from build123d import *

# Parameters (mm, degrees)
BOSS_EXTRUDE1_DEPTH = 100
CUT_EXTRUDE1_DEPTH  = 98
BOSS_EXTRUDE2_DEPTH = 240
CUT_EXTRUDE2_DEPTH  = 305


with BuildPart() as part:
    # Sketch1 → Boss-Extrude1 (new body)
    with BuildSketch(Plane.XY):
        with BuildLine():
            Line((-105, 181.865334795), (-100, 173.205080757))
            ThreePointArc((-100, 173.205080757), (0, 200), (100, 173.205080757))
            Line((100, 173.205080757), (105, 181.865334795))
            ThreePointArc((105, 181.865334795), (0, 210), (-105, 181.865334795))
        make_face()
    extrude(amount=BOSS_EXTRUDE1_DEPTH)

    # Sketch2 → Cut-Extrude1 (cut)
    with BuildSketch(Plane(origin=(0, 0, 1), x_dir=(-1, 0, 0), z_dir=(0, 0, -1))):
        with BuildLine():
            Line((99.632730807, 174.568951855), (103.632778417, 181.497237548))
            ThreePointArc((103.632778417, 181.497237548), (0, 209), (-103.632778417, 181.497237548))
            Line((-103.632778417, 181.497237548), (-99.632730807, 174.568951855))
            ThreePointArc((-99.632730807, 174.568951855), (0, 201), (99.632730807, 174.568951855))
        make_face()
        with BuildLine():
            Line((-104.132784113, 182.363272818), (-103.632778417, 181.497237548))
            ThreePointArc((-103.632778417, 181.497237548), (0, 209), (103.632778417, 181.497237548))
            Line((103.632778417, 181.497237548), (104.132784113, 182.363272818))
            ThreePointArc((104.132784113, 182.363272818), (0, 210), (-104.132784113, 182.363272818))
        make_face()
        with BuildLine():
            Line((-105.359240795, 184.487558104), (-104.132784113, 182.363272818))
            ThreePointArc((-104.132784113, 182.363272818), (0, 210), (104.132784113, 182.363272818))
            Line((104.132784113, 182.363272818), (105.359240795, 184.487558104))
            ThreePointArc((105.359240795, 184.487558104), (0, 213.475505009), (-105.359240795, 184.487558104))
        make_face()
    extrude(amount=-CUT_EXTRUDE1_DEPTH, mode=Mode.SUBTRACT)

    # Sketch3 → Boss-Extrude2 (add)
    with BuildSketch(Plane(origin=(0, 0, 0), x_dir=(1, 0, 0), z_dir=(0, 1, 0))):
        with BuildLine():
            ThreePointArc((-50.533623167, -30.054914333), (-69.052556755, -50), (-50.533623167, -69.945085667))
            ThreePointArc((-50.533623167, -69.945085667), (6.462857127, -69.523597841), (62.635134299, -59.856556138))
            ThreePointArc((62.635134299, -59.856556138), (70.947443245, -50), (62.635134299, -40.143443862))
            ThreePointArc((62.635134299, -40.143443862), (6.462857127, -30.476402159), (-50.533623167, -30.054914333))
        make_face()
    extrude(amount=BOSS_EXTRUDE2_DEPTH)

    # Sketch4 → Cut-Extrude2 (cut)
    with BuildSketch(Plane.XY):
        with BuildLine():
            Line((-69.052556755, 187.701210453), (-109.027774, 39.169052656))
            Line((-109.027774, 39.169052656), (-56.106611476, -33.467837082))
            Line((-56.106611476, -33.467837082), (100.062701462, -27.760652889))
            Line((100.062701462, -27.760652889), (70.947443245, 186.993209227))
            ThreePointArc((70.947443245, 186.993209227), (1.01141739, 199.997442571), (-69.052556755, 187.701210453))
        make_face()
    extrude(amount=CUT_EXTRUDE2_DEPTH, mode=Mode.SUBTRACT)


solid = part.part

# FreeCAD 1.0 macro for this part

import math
import FreeCAD as App
import Part
import Sketcher
from FreeCAD import Vector
Q = App.Units.Quantity

doc = App.newDocument("Part")
body = doc.addObject("PartDesign::Body", "Body")

# Sketch on XY plane
sketch1 = doc.addObject("Sketcher::SketchObject", "Sketch")
body.addObject(sketch1)
sketch1.AttachmentSupport = (doc.XY_Plane, [""])
sketch1.MapMode = "FlatFace"
sketch1.addGeometry([
    Part.LineSegment(Vector(-105, 182, 0), Vector(-100, 173, 0)),
    Part.ArcOfCircle(Part.Circle(Vector(0, 0, 0), Vector(0, 0, 1), 200), math.radians(60), math.radians(120)),
    Part.LineSegment(Vector(100, 173, 0), Vector(105, 182, 0)),
    Part.ArcOfCircle(Part.Circle(Vector(0, 0, 0), Vector(0, 0, 1), 210), math.radians(60), math.radians(120)),
], False)
sketch1.addConstraint([
    Sketcher.Constraint("Coincident", 0, 2, 1, 2),
    Sketcher.Constraint("Coincident", 1, 1, 2, 1),
    Sketcher.Constraint("Coincident", 2, 2, 3, 1),
    Sketcher.Constraint("Coincident", 3, 2, 0, 1),
    Sketcher.Constraint("Coincident", 1, 3, -1, 1),
    Sketcher.Constraint("Coincident", 3, 3, -1, 1),
    Sketcher.Constraint("Horizontal", 0, 2, 1, 1),
    Sketcher.Constraint("Horizontal", 2, 2, 3, 2),
    Sketcher.Constraint("Radius", 1, Q("200 mm")),
    Sketcher.Constraint("Radius", 3, Q("210 mm")),
    Sketcher.Constraint("Angle", 0, Q("-60 deg")),
    Sketcher.Constraint("DistanceX", 0, 2, -1, 1, Q("100 mm")),
])
pad1 = doc.addObject("PartDesign::Pad", "Pad")
body.addObject(pad1)
pad1.Profile = sketch1
pad1.Length = 100

# Sketch on XY plane
sketch2 = doc.addObject("Sketcher::SketchObject", "Sketch001")
body.addObject(sketch2)
sketch2.AttachmentSupport = (doc.XY_Plane, [""])
sketch2.MapMode = "FlatFace"
sketch2.AttachmentOffset = App.Placement(Vector(0, 0, 1), App.Rotation())
sketch2.addGeometry([
    Part.LineSegment(Vector(-99.6, 174.6, 0), Vector(-103.6, 181.5, 0)),  # 0
    Part.LineSegment(Vector(-103.6, 181.5, 0), Vector(-104.1, 182.4, 0)),  # 1
    Part.LineSegment(Vector(-104.1, 182.4, 0), Vector(-105.4, 184.5, 0)),  # 2
    Part.ArcOfCircle(Part.Circle(Vector(0, 7.5, 0), Vector(0, 0, 1), 206), math.radians(59), math.radians(121)),  # 3
    Part.LineSegment(Vector(105.4, 184.5, 0), Vector(104.1, 182.4, 0)),  # 4
    Part.LineSegment(Vector(104.1, 182.4, 0), Vector(103.6, 181.5, 0)),  # 5
    Part.LineSegment(Vector(103.6, 181.5, 0), Vector(99.6, 174.6, 0)),  # 6
    Part.ArcOfCircle(Part.Circle(Vector(0, 0, 0), Vector(0, 0, 1), 201), math.radians(60), math.radians(120)),  # 7
], False)
sketch2.addConstraint([
    Sketcher.Constraint("Coincident", 0, 2, 1, 1),
    Sketcher.Constraint("Coincident", 1, 2, 2, 1),
    Sketcher.Constraint("Coincident", 2, 2, 3, 2),
    Sketcher.Constraint("Coincident", 3, 1, 4, 1),
    Sketcher.Constraint("Coincident", 4, 2, 5, 1),
    Sketcher.Constraint("Coincident", 5, 2, 6, 1),
    Sketcher.Constraint("Coincident", 6, 2, 7, 1),
    Sketcher.Constraint("Coincident", 7, 2, 0, 1),
    Sketcher.Constraint("Coincident", 7, 3, -1, 1),
    Sketcher.Constraint("Symmetric", 2, 2, 3, 1, -2),
    Sketcher.Constraint("Symmetric", 1, 2, 4, 2, -2),
    Sketcher.Constraint("Symmetric", 0, 2, 5, 2, -2),
    Sketcher.Constraint("Parallel", 0, 1),
    Sketcher.Constraint("Parallel", 1, 2),
    Sketcher.Constraint("Parallel", 5, 6),
    Sketcher.Constraint("Radius", 7, Q("201 mm")),
    Sketcher.Constraint("Angle", 0, Q("120 deg")),
    Sketcher.Constraint("Radius", 3, Q("205.962684 mm")),
    Sketcher.Constraint("Distance", 1, Q("1.000011 mm")),
    Sketcher.Constraint("DistanceY", -1, 1, 3, 3, Q("7.512821 mm")),
    Sketcher.Constraint("DistanceX", 0, 2, -1, 1, Q("103.632778 mm")),
    Sketcher.Constraint("DistanceX", 2, 2, -1, 1, Q("105.359241 mm")),
])
pocket1 = doc.addObject("PartDesign::Pocket", "Pocket")
body.addObject(pocket1)
pocket1.Profile = sketch2
pocket1.Length = 98
pocket1.Reversed = True

# Sketch on XZ plane
sketch3 = doc.addObject("Sketcher::SketchObject", "Sketch002")
body.addObject(sketch3)
sketch3.AttachmentSupport = (doc.XZ_Plane, [""])
sketch3.MapMode = "FlatFace"
sketch3.addGeometry([
    Part.ArcOfCircle(Part.Circle(Vector(-49, 50, 0), Vector(0, 0, 1), 20), math.radians(94), math.radians(266)),
    Part.ArcOfCircle(Part.Circle(Vector(-25, -279, 0), Vector(0, 0, 1), 350), math.radians(75.56), math.radians(94.25)),
    Part.ArcOfCircle(Part.Circle(Vector(61, 50, 0), Vector(0, 0, 1), 10), math.radians(-80), math.radians(80)),
    Part.ArcOfCircle(Part.Circle(Vector(-25, 379, 0), Vector(0, 0, 1), 350), math.radians(-94.25), math.radians(-75.56)),
], False)
sketch3.addConstraint([
    Sketcher.Constraint("Tangent", 0, 1, 1, 2),
    Sketcher.Constraint("Coincident", 1, 1, 2, 2),
    Sketcher.Constraint("Coincident", 2, 1, 3, 2),
    Sketcher.Constraint("Tangent", 3, 1, 0, 2),
    Sketcher.Constraint("Equal", 1, 3),
    Sketcher.Constraint("Horizontal", 0, 3, 2, 3),
    Sketcher.Constraint("Vertical", 1, 3, 3, 3),
    Sketcher.Constraint("Radius", 0, Q("20 mm")),
    Sketcher.Constraint("Radius", 1, Q("350 mm")),
    Sketcher.Constraint("Radius", 2, Q("10 mm")),
    Sketcher.Constraint("DistanceY", -1, 1, 0, 3, Q("50 mm")),
    Sketcher.Constraint("DistanceX", 0, 3, 2, 3, Q("110 mm")),
    Sketcher.Constraint("DistanceY", 1, 3, 0, 1, Q("349.038999 mm")),
    Sketcher.Constraint("DistanceX", 1, 3, -1, 1, Q("24.614961 mm")),
])
pad2 = doc.addObject("PartDesign::Pad", "Pad001")
body.addObject(pad2)
pad2.Profile = sketch3
pad2.Length = 240
pad2.Reversed = True

# Sketch on XY plane
sketch4 = doc.addObject("Sketcher::SketchObject", "Sketch003")
body.addObject(sketch4)
sketch4.AttachmentSupport = (doc.XY_Plane, [""])
sketch4.MapMode = "FlatFace"
sketch4.addGeometry([
    Part.LineSegment(Vector(-69, 188, 0), Vector(-109, 39, 0)),  # 0
    Part.LineSegment(Vector(-109, 39, 0), Vector(-56, -33, 0)),  # 1
    Part.LineSegment(Vector(-56, -33, 0), Vector(100, -28, 0)),  # 2
    Part.LineSegment(Vector(100, -28, 0), Vector(71, 187, 0)),  # 3
    Part.ArcOfCircle(Part.Circle(Vector(0, 0, 0), Vector(0, 0, 1), 200), math.radians(69), math.radians(110)),  # 4
], False)
sketch4.addConstraint([
    Sketcher.Constraint("Coincident", 0, 2, 1, 1),
    Sketcher.Constraint("Coincident", 1, 2, 2, 1),
    Sketcher.Constraint("Coincident", 2, 2, 3, 1),
    Sketcher.Constraint("Coincident", 3, 2, 4, 1),
    Sketcher.Constraint("Coincident", 4, 2, 0, 1),
    Sketcher.Constraint("Coincident", 4, 3, -1, 1),
    Sketcher.Constraint("Radius", 4, Q("200 mm")),
    Sketcher.Constraint("DistanceX", 4, 2, 3, 2, Q("140 mm")),
    Sketcher.Constraint("DistanceY", 3, 2, 4, 2, Q("0.708001 mm")),
    Sketcher.Constraint("DistanceX", -1, 1, 2, 2, Q("100.062701 mm")),
    Sketcher.Constraint("Distance", 0, Q("153.817489 mm")),
    Sketcher.Constraint("DistanceX", 1, 2, -1, 1, Q("56.106611 mm")),
    Sketcher.Constraint("DistanceY", 1, 2, 0, 2, Q("72.63689 mm")),
    Sketcher.Constraint("Distance", 1, Q("89.870836 mm")),
    Sketcher.Constraint("Distance", 2, Q("156.273562 mm")),
])
pocket2 = doc.addObject("PartDesign::Pocket", "Pocket001")
body.addObject(pocket2)
pocket2.Profile = sketch4
pocket2.Length = 305
pocket2.Reversed = True

doc.recompute()
